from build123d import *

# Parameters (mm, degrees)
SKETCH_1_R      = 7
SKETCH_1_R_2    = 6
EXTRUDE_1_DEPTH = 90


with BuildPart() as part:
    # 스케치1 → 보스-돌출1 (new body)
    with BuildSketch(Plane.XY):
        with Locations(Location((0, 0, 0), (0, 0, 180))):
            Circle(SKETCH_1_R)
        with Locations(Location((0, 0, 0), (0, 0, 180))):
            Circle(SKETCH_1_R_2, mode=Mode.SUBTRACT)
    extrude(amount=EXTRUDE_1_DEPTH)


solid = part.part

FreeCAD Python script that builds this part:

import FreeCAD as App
import Part
import Sketcher
from FreeCAD import Vector

doc = App.newDocument("Part")
body = doc.addObject("PartDesign::Body", "Body")

sketch1 = body.newObject("Sketcher::SketchObject", "Sketch")
sketch1.AttachmentSupport = (doc.getObject("XY_Plane"), [""])
sketch1.MapMode = "FlatFace"
sketch1.addGeometry(Part.Circle(Vector(0, 0, 0), Vector(0, 0, 1), 7), False)
sketch1.addGeometry(Part.Circle(Vector(0, 0, 0), Vector(0, 0, 1), 6), False)
sketch1.addConstraint(Sketcher.Constraint("Coincident", 0, 3, -1, 1))
sketch1.addConstraint(Sketcher.Constraint("Coincident", 1, 3, -1, 1))
sketch1.addConstraint(Sketcher.Constraint("Diameter", 0, 14.0))
sketch1.addConstraint(Sketcher.Constraint("Diameter", 1, 12.0))
pad1 = body.newObject("PartDesign::Pad", "Pad")
pad1.Profile = sketch1
pad1.Length = 90

doc.recompute()
